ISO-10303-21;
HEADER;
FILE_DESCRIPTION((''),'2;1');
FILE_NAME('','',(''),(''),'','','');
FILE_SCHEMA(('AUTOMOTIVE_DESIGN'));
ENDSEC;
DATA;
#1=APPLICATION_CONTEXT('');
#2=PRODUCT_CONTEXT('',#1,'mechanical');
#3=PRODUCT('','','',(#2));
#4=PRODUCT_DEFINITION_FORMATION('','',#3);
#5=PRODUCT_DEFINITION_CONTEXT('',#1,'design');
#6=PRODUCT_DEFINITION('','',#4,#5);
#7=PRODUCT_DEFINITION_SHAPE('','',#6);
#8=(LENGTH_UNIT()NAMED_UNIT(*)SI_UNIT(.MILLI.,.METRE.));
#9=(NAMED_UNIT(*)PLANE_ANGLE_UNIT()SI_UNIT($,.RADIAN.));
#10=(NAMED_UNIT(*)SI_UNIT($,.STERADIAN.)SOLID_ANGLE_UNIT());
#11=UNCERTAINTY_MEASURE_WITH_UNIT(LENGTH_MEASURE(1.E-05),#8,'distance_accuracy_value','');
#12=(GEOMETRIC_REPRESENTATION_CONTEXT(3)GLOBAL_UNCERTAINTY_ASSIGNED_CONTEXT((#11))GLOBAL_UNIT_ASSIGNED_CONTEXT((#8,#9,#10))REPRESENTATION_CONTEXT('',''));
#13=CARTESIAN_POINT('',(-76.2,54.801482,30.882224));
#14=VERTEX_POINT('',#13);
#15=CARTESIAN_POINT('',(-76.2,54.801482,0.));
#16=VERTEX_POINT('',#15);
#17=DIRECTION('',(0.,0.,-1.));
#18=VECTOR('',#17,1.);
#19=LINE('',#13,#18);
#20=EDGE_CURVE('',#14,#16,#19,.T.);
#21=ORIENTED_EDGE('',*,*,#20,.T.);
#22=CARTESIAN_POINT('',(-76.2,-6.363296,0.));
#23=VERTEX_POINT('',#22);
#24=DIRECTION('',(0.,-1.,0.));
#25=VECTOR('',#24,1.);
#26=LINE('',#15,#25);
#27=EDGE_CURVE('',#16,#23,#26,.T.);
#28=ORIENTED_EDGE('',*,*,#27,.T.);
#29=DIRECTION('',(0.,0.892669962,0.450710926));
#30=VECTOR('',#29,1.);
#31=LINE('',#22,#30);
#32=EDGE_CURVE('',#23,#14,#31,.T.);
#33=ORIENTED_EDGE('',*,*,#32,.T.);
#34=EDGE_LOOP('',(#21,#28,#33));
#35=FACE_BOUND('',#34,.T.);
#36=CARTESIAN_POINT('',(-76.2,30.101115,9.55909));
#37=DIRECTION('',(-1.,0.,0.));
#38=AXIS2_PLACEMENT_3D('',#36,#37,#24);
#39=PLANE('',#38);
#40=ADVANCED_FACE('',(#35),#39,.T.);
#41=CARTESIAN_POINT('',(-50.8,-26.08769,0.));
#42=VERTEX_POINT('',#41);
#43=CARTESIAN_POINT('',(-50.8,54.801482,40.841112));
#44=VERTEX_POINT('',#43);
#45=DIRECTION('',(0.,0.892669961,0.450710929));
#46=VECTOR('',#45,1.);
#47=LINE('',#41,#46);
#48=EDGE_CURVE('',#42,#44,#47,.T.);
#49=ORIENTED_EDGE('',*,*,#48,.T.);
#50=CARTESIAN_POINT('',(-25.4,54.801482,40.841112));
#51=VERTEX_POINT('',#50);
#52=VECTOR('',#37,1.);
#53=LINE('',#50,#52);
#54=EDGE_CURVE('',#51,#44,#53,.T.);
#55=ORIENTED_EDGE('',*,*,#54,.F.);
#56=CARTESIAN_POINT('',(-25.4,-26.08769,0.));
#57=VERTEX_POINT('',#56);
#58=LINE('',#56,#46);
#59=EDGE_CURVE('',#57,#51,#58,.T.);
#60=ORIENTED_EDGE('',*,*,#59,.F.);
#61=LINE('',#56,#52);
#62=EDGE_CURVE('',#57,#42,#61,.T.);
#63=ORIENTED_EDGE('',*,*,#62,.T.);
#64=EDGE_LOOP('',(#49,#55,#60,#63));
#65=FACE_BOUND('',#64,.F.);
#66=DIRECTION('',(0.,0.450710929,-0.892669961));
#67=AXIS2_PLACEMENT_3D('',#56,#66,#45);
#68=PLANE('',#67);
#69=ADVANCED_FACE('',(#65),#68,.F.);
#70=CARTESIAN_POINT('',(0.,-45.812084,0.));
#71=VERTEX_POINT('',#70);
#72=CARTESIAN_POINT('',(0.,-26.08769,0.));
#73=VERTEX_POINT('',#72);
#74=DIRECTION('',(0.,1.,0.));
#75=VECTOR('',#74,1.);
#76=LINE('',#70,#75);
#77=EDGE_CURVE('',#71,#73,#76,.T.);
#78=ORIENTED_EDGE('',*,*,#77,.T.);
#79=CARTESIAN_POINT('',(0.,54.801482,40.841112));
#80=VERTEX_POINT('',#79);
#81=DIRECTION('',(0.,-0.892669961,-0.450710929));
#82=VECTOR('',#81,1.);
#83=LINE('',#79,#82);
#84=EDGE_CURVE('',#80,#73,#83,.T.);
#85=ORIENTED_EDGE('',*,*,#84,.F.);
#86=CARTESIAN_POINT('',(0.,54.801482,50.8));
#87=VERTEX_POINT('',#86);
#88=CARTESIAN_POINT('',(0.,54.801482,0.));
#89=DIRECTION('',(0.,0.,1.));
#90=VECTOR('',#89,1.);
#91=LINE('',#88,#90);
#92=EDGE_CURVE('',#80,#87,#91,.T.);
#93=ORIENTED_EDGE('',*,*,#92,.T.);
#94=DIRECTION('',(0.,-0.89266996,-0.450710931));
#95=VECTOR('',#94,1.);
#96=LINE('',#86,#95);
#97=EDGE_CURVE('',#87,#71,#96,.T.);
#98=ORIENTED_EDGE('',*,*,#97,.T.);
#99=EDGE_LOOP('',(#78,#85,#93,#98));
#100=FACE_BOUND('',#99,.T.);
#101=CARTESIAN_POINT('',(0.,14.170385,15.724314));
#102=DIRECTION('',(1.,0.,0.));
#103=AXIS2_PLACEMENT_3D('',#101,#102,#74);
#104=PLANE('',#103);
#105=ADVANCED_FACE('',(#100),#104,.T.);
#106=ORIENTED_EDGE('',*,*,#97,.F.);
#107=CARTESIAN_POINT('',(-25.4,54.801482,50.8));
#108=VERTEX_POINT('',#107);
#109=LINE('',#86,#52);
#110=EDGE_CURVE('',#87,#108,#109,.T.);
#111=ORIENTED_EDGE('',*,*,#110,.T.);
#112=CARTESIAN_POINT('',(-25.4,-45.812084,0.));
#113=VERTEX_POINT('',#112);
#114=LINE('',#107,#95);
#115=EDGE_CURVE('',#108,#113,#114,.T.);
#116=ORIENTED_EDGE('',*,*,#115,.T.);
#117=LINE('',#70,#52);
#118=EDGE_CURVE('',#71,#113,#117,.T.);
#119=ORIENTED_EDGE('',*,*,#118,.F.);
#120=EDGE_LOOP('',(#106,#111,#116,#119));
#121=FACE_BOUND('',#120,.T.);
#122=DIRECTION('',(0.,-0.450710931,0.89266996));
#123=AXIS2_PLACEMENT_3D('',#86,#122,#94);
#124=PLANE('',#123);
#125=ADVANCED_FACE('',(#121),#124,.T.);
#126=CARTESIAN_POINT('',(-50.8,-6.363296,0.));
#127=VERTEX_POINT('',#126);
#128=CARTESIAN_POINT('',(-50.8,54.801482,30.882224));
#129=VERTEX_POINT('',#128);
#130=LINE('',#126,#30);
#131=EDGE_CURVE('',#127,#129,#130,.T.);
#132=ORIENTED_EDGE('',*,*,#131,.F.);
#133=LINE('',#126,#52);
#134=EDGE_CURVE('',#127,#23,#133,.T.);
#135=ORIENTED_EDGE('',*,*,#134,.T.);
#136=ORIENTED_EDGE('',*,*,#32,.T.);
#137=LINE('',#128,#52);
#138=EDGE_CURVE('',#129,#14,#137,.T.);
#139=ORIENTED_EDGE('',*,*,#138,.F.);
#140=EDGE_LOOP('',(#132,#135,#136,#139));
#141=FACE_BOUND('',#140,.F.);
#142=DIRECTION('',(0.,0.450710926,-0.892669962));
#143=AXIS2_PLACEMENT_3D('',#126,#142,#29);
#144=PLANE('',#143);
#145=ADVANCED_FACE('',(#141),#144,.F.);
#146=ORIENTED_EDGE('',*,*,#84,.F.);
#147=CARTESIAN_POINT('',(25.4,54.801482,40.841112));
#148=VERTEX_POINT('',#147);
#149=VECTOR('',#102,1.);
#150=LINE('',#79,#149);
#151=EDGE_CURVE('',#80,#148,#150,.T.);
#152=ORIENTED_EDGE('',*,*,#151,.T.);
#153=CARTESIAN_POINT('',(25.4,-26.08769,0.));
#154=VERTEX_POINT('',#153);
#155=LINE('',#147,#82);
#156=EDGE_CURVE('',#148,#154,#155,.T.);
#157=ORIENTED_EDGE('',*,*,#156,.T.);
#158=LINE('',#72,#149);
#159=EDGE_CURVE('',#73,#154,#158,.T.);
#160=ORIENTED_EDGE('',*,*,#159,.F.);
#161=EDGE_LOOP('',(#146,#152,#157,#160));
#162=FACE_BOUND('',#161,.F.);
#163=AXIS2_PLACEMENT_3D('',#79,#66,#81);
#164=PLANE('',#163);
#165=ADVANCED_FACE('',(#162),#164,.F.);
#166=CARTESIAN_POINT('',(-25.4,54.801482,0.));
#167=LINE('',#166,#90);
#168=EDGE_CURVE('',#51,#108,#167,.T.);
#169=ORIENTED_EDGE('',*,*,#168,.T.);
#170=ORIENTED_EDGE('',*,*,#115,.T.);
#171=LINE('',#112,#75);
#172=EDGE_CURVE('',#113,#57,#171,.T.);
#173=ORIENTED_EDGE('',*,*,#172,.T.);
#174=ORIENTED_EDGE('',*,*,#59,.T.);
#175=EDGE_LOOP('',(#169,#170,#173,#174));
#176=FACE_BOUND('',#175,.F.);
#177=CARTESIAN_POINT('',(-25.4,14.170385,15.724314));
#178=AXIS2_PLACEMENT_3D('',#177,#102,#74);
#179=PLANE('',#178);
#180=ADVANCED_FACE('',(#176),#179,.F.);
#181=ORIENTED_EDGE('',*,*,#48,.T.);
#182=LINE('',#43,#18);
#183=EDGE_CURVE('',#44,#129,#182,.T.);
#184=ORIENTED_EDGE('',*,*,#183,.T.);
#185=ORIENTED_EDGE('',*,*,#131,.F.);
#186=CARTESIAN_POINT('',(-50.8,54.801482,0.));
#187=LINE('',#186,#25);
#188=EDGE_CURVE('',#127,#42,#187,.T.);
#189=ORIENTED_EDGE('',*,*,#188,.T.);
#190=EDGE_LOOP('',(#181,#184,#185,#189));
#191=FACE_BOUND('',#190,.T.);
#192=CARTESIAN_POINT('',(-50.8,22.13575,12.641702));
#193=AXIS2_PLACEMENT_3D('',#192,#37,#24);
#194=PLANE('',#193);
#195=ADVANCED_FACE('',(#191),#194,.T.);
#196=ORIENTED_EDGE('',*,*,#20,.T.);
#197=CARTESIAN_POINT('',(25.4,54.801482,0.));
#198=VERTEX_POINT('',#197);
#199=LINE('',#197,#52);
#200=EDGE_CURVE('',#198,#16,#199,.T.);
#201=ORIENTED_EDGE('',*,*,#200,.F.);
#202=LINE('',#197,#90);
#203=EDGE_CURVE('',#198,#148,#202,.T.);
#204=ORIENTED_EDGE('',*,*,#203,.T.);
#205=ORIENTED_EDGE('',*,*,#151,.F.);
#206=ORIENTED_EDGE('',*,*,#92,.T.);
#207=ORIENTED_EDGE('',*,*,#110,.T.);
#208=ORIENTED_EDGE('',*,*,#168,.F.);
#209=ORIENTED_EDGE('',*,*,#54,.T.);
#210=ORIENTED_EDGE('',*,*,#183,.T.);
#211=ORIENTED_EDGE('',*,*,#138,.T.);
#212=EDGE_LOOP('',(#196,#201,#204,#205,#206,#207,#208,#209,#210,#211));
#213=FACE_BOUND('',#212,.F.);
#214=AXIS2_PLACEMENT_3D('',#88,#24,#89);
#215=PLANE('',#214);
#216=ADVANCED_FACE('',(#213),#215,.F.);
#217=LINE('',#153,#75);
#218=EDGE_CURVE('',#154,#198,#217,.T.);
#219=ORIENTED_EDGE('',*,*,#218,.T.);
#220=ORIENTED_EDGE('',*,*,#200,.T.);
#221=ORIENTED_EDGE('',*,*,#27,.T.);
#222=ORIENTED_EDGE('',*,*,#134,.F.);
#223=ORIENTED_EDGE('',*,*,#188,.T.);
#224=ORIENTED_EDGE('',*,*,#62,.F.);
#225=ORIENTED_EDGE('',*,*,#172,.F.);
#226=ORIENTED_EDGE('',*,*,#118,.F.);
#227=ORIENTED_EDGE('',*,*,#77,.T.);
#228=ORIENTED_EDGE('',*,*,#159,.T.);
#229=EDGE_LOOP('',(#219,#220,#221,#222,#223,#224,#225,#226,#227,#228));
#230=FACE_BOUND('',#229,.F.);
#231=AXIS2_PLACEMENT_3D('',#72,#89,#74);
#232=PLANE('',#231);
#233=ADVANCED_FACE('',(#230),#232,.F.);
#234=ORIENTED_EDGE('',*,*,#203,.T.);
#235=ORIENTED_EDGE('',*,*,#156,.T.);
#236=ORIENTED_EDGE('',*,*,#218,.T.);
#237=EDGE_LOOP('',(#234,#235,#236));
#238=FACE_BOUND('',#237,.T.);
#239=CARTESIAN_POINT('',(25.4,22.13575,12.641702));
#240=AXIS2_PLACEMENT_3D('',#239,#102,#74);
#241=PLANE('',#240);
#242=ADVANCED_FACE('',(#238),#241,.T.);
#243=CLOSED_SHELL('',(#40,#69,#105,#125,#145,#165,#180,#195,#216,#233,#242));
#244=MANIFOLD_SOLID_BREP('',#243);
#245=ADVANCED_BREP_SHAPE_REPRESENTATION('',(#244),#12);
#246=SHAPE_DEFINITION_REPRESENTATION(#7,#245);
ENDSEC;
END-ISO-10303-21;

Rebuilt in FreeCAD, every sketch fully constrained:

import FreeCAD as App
import Part
import Sketcher

V = App.Vector
Q = App.Units.Quantity


def add_polygon(sketch, points):
    """Adds a closed chain of lines whose ends are joined by coincident constraints."""
    first, n = sketch.GeometryCount, len(points)
    for a, b in zip(points, points[1:] + points[:1]):
        sketch.addGeometry(Part.LineSegment(App.Vector(*a, 0), App.Vector(*b, 0)), False)
    for i in range(n):
        sketch.addConstraint(Sketcher.Constraint("Coincident", first + i, 2, first + (i + 1) % n, 1))

doc = App.newDocument("Part")
body = doc.addObject("PartDesign::Body", "Body")

sketch1 = body.newObject("Sketcher::SketchObject", "Sketch")
sketch1.AttachmentSupport = (doc.getObject("YZ_Plane"), [""])
sketch1.MapMode = "FlatFace"
add_polygon(sketch1, [(55, 51), (-46, 0), (55, 0)])
sketch1.addConstraint(Sketcher.Constraint("Horizontal", 1))
sketch1.addConstraint(Sketcher.Constraint("Vertical", 2))
sketch1.addConstraint(Sketcher.Constraint("PointOnObject", 0, 2, -1))
sketch1.addConstraint(Sketcher.Constraint("DistanceY", 2, 1, 2, 2, Q("2 in")))
sketch1.addConstraint(Sketcher.Constraint("DistanceX", 1, 1, 1, 2, Q("100.613566 mm")))
sketch1.addConstraint(Sketcher.Constraint("DistanceX", 0, 2, -1, 1, Q("45.812084 mm")))
pad1 = body.newObject("PartDesign::Pad", "Pad")
pad1.Profile = sketch1
pad1.Length = Q("1 in")
pad1.Reversed = True

sketch2 = body.newObject("Sketcher::SketchObject", "Sketch001")
sketch2.AttachmentSupport = (doc.getObject("YZ_Plane"), [""])
sketch2.MapMode = "FlatFace"
sketch2.AttachmentOffset = App.Placement(V(0, 0, -1 * 25.4), App.Rotation())
add_polygon(sketch2, [(55, 41), (55, 0), (-26, 0)])
sketch2.addConstraint(Sketcher.Constraint("Vertical", 0))
sketch2.addConstraint(Sketcher.Constraint("Horizontal", 1))
sketch2.addConstraint(Sketcher.Constraint("PointOnObject", 0, 2, -1))
sketch2.addConstraint(Sketcher.Constraint("Distance", 2, Q("90.61487 mm")))
sketch2.addConstraint(Sketcher.Constraint("DistanceX", 1, 2, 1, 1, Q("80.889172 mm")))
sketch2.addConstraint(Sketcher.Constraint("DistanceX", 1, 2, -1, 1, Q("26.08769 mm")))
pad2 = body.newObject("PartDesign::Pad", "Pad001")
pad2.Profile = sketch2
pad2.Length = Q("1 in")
pad2.Reversed = True

sketch3 = body.newObject("Sketcher::SketchObject", "Sketch002")
sketch3.AttachmentSupport = (doc.getObject("YZ_Plane"), [""])
sketch3.MapMode = "FlatFace"
sketch3.AttachmentOffset = App.Placement(V(0, 0, -2 * 25.4), App.Rotation())
add_polygon(sketch3, [(55, 0), (-6, 0), (55, 31)])
sketch3.addConstraint(Sketcher.Constraint("Horizontal", 0))
sketch3.addConstraint(Sketcher.Constraint("Vertical", 2))
sketch3.addConstraint(Sketcher.Constraint("PointOnObject", 0, 2, -1))
sketch3.addConstraint(Sketcher.Constraint("DistanceX", 0, 2, 0, 1, Q("61.164778 mm")))
sketch3.addConstraint(Sketcher.Constraint("DistanceY", 2, 2, 2, 1, Q("30.882224 mm")))
sketch3.addConstraint(Sketcher.Constraint("DistanceX", 0, 2, -1, 1, Q("6.363296 mm")))
pad3 = body.newObject("PartDesign::Pad", "Pad002")
pad3.Profile = sketch3
pad3.Length = Q("1 in")
pad3.Reversed = True

sketch4 = body.newObject("Sketcher::SketchObject", "Sketch003")
sketch4.AttachmentSupport = (doc.getObject("YZ_Plane"), [""])
sketch4.MapMode = "FlatFace"
add_polygon(sketch4, [(55, 41), (-26, 0), (55, 0)])
sketch4.addConstraint(Sketcher.Constraint("Horizontal", 1))
sketch4.addConstraint(Sketcher.Constraint("Vertical", 2))
sketch4.addConstraint(Sketcher.Constraint("PointOnObject", 0, 2, -1))
sketch4.addConstraint(Sketcher.Constraint("Distance", 0, Q("90.61487 mm")))
sketch4.addConstraint(Sketcher.Constraint("DistanceX", 1, 1, 1, 2, Q("80.889172 mm")))
sketch4.addConstraint(Sketcher.Constraint("DistanceX", 0, 2, -1, 1, Q("26.08769 mm")))
pad4 = body.newObject("PartDesign::Pad", "Pad003")
pad4.Profile = sketch4
pad4.Length = Q("1 in")

doc.recompute()
